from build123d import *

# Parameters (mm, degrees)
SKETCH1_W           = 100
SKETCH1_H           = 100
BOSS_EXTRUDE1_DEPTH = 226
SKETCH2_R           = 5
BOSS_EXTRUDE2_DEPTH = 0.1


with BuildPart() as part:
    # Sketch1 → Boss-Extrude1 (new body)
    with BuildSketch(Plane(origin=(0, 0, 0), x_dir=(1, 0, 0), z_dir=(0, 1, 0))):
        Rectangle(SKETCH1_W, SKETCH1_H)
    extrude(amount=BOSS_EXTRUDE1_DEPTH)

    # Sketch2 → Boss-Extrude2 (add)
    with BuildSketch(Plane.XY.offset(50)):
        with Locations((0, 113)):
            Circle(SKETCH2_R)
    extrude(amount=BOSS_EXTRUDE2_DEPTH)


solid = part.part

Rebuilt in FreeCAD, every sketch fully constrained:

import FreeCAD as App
import Part
import Sketcher
Q = App.Units.Quantity

doc = App.newDocument("Part")
params = doc.addObject("Spreadsheet::Sheet", "Params")
for row, (alias, value) in enumerate([
    ("sketch1_width", "100 mm"),
    ("pad1_length", "226 mm"),
    ("sketch2_diameter", "10 mm"),
    ("pad2_length", "0.1 mm"),
], start=1):
    params.set(f"A{row}", alias)
    params.set(f"B{row}", "=" + value)
    params.setAlias(f"B{row}", alias)

body = doc.addObject("PartDesign::Body", "Body")

# Sketch on XZ plane
sketch1 = doc.addObject("Sketcher::SketchObject", "Sketch")
body.addObject(sketch1)
sketch1.AttachmentSupport = (doc.XZ_Plane, [""])
sketch1.MapMode = "FlatFace"
sketch1.addGeometry(Part.LineSegment(App.Vector(-50, -50, 0), App.Vector(-50, 50, 0)), False)
sketch1.addGeometry(Part.LineSegment(App.Vector(-50, 50, 0), App.Vector(50, 50, 0)), False)
sketch1.addGeometry(Part.LineSegment(App.Vector(50, 50, 0), App.Vector(50, -50, 0)), False)
sketch1.addGeometry(Part.LineSegment(App.Vector(50, -50, 0), App.Vector(-50, -50, 0)), False)
sketch1.addConstraint(Sketcher.Constraint("Coincident", 0, 2, 1, 1))
sketch1.addConstraint(Sketcher.Constraint("Coincident", 1, 2, 2, 1))
sketch1.addConstraint(Sketcher.Constraint("Coincident", 2, 2, 3, 1))
sketch1.addConstraint(Sketcher.Constraint("Coincident", 3, 2, 0, 1))
sketch1.addConstraint(Sketcher.Constraint("Vertical", 0))
sketch1.addConstraint(Sketcher.Constraint("Horizontal", 1))
sketch1.addConstraint(Sketcher.Constraint("Vertical", 2))
sketch1.addConstraint(Sketcher.Constraint("Horizontal", 3))
sketch1.addConstraint(Sketcher.Constraint("Symmetric", 0, 2, 2, 2, -1, 1))
sketch1.addConstraint(Sketcher.Constraint("Equal", 3, 0))
sketch1.addConstraint(Sketcher.Constraint("DistanceX", 1, 1, 1, 2, Q("100 mm")))
sketch1.setExpression("Constraints[10]", "Params.sketch1_width")
pad1 = doc.addObject("PartDesign::Pad", "Pad")
body.addObject(pad1)
pad1.Profile = sketch1
pad1.setExpression("Length", "Params.pad1_length")
pad1.Reversed = True

# Sketch on XY plane
sketch2 = doc.addObject("Sketcher::SketchObject", "Sketch001")
body.addObject(sketch2)
sketch2.AttachmentSupport = (doc.XY_Plane, [""])
sketch2.MapMode = "FlatFace"
sketch2.AttachmentOffset = App.Placement(App.Vector(0, 0, 50), App.Rotation())
sketch2.addGeometry(Part.Circle(App.Vector(0, 113, 0), App.Vector(0, 0, 1), 5), False)
sketch2.addConstraint(Sketcher.Constraint("PointOnObject", 0, 3, -2))
sketch2.addConstraint(Sketcher.Constraint("Diameter", 0, Q("10 mm")))
sketch2.addConstraint(Sketcher.Constraint("DistanceY", -1, 1, 0, 3, Q("113 mm")))
sketch2.setExpression("Constraints[1]", "Params.sketch2_diameter")
pad2 = doc.addObject("PartDesign::Pad", "Pad001")
body.addObject(pad2)
pad2.Profile = sketch2
pad2.setExpression("Length", "Params.pad2_length")

doc.recompute()
